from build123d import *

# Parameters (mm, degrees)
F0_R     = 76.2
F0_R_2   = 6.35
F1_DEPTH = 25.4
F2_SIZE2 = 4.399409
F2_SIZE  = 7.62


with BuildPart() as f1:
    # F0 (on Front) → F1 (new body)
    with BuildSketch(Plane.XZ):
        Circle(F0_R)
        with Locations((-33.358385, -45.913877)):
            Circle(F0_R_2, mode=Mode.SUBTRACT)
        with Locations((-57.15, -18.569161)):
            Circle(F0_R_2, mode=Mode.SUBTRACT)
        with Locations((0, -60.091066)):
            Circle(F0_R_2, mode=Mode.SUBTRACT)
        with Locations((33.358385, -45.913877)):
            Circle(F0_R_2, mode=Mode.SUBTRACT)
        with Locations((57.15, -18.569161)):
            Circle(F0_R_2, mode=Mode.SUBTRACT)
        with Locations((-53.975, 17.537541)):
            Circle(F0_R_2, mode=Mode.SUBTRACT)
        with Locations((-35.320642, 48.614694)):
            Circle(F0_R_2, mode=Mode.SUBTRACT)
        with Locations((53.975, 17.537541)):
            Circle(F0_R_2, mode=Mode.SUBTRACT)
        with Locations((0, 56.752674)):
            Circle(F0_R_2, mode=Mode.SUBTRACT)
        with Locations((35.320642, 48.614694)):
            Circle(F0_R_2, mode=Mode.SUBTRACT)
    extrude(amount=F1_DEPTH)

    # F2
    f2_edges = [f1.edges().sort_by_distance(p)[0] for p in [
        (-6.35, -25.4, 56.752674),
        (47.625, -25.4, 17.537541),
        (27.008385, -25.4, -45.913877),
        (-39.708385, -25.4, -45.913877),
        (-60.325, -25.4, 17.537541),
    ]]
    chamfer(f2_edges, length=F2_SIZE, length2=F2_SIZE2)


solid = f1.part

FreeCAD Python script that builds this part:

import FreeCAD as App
import Part
import Sketcher

V = App.Vector
Q = App.Units.Quantity


def edges_at(feature, points):
    """Names of the edges that pass closest to the given points."""
    edges = feature.Shape.Edges
    near = lambda p: min(range(len(edges)), key=lambda i: edges[i].distToShape(Part.Vertex(*p))[0])
    return sorted({f"Edge{near(p) + 1}" for p in points})

doc = App.newDocument("Part")
body = doc.addObject("PartDesign::Body", "Body")

sketch1 = doc.addObject("Sketcher::SketchObject", "Sketch")
body.addObject(sketch1)
sketch1.AttachmentSupport = (doc.XZ_Plane, [""])
sketch1.MapMode = "FlatFace"
sketch1.addGeometry([
    Part.Circle(V(0, 0, 0), V(0, 0, 1), 76),
    Part.Circle(V(-33, -46, 0), V(0, 0, 1), 6),
    Part.Circle(V(-57, -19, 0), V(0, 0, 1), 6),
    Part.Circle(V(0, -60, 0), V(0, 0, 1), 6),
    Part.Circle(V(33, -46, 0), V(0, 0, 1), 6),
    Part.Circle(V(57, -19, 0), V(0, 0, 1), 6),
    Part.Circle(V(-54, 18, 0), V(0, 0, 1), 6),
    Part.Circle(V(-35, 49, 0), V(0, 0, 1), 6),
    Part.Circle(V(54, 18, 0), V(0, 0, 1), 6),
    Part.Circle(V(0, 57, 0), V(0, 0, 1), 6),
    Part.Circle(V(35, 49, 0), V(0, 0, 1), 6),
], False)
sketch1.addConstraint([
    Sketcher.Constraint("Coincident", 0, 3, -1, 1),
    Sketcher.Constraint("Equal", 1, 2),
    Sketcher.Constraint("Equal", 2, 3),
    Sketcher.Constraint("Equal", 3, 4),
    Sketcher.Constraint("Equal", 4, 5),
    Sketcher.Constraint("Equal", 5, 6),
    Sketcher.Constraint("Equal", 6, 7),
    Sketcher.Constraint("Equal", 7, 8),
    Sketcher.Constraint("Equal", 8, 9),
    Sketcher.Constraint("Equal", 9, 10),
    Sketcher.Constraint("Symmetric", 1, 3, 4, 3, -2),
    Sketcher.Constraint("Symmetric", 2, 3, 5, 3, -2),
    Sketcher.Constraint("Symmetric", 6, 3, 8, 3, -2),
    Sketcher.Constraint("Symmetric", 7, 3, 10, 3, -2),
    Sketcher.Constraint("PointOnObject", 3, 3, -2),
    Sketcher.Constraint("PointOnObject", 9, 3, -2),
    Sketcher.Constraint("Diameter", 0, Q("6 in")),
    Sketcher.Constraint("Diameter", 1, Q("0.5 in")),
    Sketcher.Constraint("DistanceX", 2, 3, 5, 3, Q("4.5 in")),
    Sketcher.Constraint("DistanceX", 6, 3, -1, 1, Q("2.125 in")),
    Sketcher.Constraint("DistanceY", 2, 3, -1, 1, 18.569161),
    Sketcher.Constraint("DistanceY", -1, 1, 6, 3, 17.537541),
    Sketcher.Constraint("DistanceY", 3, 3, 1, 3, 14.177189),
    Sketcher.Constraint("DistanceX", 1, 3, 4, 3, 66.71677),
    Sketcher.Constraint("DistanceY", 1, 3, 6, 3, 63.451418),
    Sketcher.Constraint("DistanceX", 6, 3, 7, 3, 18.654358),
    Sketcher.Constraint("DistanceY", 1, 3, 7, 3, 94.528571),
    Sketcher.Constraint("DistanceY", 7, 3, 9, 3, 8.13798),
])
pad1 = doc.addObject("PartDesign::Pad", "Pad")
body.addObject(pad1)
pad1.Profile = sketch1
pad1.Length = Q("1 in")
doc.recompute()

chamfer = doc.addObject("PartDesign::Chamfer", "Chamfer")
body.addObject(chamfer)
chamfer.Base = (pad1, edges_at(pad1, [
    (-6.35, -25.4, 56.753),
    (47.625, -25.4, 17.538),
    (27.008, -25.4, -45.914),
    (-39.708, -25.4, -45.914),
    (-60.325, -25.4, 17.538),
]))
chamfer.ChamferType = "Two distances"
chamfer.Size = Q("0.3 in")
chamfer.Size2 = 4.399409

doc.recompute()
